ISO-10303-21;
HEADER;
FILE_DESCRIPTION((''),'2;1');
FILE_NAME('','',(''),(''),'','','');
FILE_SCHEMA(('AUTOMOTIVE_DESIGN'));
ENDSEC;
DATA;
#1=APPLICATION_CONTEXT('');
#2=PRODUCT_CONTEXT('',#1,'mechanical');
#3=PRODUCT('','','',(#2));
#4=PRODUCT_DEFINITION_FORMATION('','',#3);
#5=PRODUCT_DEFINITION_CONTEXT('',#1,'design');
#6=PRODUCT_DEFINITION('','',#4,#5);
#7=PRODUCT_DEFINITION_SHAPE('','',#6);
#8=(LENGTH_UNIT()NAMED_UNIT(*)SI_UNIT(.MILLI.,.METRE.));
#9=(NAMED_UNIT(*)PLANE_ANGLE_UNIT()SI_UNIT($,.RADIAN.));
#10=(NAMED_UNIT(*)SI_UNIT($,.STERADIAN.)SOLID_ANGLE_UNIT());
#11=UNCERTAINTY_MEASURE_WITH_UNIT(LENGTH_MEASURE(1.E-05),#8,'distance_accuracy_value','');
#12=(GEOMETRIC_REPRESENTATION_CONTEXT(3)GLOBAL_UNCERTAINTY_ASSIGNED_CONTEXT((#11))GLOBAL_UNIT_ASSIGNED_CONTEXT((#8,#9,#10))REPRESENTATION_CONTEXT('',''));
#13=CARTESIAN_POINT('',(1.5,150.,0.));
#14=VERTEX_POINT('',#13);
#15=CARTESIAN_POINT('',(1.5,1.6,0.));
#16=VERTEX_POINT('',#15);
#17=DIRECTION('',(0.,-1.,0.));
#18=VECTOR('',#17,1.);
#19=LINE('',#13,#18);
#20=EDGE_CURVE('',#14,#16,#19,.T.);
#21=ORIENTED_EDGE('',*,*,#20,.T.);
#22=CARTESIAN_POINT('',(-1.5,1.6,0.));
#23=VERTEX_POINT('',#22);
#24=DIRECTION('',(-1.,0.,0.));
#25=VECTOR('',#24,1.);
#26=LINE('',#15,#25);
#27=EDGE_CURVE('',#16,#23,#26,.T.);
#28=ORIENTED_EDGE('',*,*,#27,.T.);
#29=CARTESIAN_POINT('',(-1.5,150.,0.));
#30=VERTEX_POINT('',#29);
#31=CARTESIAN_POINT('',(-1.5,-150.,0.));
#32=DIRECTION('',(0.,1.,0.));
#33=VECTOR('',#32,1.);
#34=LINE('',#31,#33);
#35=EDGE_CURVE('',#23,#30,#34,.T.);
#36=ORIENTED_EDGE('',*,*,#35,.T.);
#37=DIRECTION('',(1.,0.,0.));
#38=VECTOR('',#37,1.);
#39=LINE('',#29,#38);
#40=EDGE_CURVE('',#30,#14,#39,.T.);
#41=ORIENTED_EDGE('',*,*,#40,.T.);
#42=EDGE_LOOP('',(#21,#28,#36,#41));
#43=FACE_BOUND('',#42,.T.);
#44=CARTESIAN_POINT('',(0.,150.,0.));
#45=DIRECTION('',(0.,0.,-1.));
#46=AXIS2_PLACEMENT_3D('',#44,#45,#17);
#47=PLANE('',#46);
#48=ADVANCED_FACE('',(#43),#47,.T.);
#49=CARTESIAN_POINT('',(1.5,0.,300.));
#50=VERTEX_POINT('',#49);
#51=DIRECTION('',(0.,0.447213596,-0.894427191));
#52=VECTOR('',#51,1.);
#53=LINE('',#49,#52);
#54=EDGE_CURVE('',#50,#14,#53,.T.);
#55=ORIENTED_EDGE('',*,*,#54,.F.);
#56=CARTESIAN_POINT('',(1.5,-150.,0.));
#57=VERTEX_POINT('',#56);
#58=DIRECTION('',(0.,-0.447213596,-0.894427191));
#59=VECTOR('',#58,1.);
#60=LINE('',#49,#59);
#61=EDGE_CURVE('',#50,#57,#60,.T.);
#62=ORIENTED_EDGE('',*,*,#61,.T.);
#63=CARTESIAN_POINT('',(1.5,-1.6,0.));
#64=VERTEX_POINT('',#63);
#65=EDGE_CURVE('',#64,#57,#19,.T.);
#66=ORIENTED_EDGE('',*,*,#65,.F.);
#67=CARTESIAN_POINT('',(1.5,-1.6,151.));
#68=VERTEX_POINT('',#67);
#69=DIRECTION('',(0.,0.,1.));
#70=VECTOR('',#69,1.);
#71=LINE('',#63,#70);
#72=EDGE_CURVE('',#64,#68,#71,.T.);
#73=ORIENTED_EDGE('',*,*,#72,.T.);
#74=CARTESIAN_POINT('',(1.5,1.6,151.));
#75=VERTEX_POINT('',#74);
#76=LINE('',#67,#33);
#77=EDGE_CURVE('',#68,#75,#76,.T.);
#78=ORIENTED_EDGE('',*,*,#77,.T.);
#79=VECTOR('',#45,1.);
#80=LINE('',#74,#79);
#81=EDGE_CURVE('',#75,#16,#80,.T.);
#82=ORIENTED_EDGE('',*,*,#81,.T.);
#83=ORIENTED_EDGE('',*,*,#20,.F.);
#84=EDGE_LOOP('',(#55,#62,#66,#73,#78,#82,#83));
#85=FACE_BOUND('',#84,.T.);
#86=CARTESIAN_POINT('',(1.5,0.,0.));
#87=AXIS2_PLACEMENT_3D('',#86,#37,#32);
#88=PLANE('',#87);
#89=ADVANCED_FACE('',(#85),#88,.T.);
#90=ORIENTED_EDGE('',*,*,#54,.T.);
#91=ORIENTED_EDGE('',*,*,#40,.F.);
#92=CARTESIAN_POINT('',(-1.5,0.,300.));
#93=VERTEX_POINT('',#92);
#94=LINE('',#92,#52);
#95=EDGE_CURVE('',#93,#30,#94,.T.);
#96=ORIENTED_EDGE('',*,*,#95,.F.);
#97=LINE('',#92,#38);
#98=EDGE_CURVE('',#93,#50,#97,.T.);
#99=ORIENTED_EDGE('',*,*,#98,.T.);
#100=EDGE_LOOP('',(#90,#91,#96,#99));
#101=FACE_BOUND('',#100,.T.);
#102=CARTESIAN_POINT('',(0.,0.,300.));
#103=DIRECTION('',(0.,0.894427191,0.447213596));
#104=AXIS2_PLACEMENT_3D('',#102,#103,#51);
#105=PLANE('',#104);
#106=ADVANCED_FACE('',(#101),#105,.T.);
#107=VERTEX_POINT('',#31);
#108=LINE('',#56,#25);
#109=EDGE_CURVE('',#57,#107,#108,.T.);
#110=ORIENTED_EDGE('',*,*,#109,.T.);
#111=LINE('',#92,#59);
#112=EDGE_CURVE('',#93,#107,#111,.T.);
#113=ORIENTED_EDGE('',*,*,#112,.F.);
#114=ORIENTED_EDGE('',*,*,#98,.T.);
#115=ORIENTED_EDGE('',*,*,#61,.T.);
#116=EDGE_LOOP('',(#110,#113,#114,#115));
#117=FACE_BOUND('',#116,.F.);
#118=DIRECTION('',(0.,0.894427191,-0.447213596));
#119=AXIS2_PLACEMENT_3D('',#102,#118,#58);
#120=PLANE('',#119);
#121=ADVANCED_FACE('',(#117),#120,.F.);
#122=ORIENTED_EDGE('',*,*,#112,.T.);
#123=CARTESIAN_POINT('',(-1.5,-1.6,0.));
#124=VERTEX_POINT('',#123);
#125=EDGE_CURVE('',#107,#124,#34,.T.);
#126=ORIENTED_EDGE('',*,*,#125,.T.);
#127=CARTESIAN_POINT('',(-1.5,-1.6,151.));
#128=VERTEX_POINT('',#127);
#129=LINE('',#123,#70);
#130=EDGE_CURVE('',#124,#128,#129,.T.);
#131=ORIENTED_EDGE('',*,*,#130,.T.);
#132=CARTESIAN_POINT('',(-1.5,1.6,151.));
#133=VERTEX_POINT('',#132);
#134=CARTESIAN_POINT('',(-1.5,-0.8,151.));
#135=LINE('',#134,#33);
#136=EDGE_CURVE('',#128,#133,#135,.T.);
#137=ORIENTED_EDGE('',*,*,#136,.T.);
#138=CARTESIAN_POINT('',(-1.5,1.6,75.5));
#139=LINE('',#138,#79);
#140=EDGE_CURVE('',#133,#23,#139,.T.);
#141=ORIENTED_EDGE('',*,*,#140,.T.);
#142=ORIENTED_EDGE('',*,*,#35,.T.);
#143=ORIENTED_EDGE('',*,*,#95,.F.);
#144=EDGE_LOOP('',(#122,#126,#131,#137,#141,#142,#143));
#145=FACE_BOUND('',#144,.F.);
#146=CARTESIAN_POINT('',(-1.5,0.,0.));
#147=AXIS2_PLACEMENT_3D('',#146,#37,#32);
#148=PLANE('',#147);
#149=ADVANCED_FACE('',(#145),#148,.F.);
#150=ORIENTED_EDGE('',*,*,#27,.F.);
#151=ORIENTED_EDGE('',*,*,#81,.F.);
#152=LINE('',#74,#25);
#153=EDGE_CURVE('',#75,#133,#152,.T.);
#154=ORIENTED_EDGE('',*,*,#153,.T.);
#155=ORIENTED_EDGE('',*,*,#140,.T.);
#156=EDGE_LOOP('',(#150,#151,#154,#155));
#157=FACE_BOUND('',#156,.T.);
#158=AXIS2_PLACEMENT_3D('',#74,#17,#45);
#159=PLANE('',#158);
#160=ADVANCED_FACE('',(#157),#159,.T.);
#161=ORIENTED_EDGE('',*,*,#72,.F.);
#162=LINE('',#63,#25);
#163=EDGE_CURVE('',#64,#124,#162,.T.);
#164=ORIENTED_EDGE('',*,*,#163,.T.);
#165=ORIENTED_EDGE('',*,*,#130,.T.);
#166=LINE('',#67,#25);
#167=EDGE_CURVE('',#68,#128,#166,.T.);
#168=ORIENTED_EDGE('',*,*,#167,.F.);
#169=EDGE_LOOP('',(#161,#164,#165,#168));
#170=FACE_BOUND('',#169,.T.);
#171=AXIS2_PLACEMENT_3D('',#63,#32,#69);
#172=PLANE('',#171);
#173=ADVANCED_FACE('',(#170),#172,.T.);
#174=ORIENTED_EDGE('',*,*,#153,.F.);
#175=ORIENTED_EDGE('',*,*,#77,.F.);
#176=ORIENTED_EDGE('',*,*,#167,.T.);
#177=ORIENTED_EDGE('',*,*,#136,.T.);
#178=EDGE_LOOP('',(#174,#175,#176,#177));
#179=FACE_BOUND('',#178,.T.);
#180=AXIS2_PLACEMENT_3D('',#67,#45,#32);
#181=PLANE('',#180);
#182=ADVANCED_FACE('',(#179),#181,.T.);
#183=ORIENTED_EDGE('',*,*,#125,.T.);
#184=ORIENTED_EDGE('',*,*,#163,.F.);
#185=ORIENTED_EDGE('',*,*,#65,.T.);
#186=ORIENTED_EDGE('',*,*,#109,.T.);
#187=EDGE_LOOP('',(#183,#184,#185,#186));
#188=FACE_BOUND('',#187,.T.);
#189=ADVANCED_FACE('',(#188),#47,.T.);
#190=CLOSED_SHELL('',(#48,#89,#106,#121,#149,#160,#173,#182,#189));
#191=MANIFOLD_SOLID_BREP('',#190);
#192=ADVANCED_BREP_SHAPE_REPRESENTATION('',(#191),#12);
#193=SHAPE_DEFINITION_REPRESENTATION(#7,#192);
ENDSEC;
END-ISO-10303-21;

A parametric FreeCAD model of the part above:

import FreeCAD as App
import Part
import Sketcher


def add_polygon(sketch, points):
    """Adds a closed chain of lines whose ends are joined by coincident constraints."""
    first, n = sketch.GeometryCount, len(points)
    for a, b in zip(points, points[1:] + points[:1]):
        sketch.addGeometry(Part.LineSegment(App.Vector(*a, 0), App.Vector(*b, 0)), False)
    for i in range(n):
        sketch.addConstraint(Sketcher.Constraint("Coincident", first + i, 2, first + (i + 1) % n, 1))

doc = App.newDocument("Part")
body = doc.addObject("PartDesign::Body", "Body")

sketch1 = body.newObject("Sketcher::SketchObject", "Sketch")
sketch1.AttachmentSupport = (doc.getObject("YZ_Plane"), [""])
sketch1.MapMode = "FlatFace"
add_polygon(sketch1, [(150, 0), (0, 300), (-150, 0)])
sketch1.addConstraint(Sketcher.Constraint("Horizontal", 2))
sketch1.addConstraint(Sketcher.Constraint("Symmetric", 1, 2, 2, 2, -1, 1))
sketch1.addConstraint(Sketcher.Constraint("PointOnObject", 0, 2, -2))
sketch1.addConstraint(Sketcher.Constraint("DistanceX", 2, 1, 2, 2, 300.0))
sketch1.addConstraint(Sketcher.Constraint("DistanceY", -1, 1, 0, 2, 300.0))
pad1 = body.newObject("PartDesign::Pad", "Pad")
pad1.Profile = sketch1
pad1.Length = 3
pad1.Midplane = True

sketch2 = body.newObject("Sketcher::SketchObject", "Sketch001")
sketch2.AttachmentSupport = (doc.getObject("YZ_Plane"), [""])
sketch2.MapMode = "FlatFace"
sketch2.AttachmentOffset = App.Placement(App.Vector(0, 0, 1.5), App.Rotation())
add_polygon(sketch2, [(-1.6, 151), (-1.6, 0), (1.6, 0), (1.6, 151)])
sketch2.addConstraint(Sketcher.Constraint("Vertical", 0))
sketch2.addConstraint(Sketcher.Constraint("Horizontal", 1))
sketch2.addConstraint(Sketcher.Constraint("Vertical", 2))
sketch2.addConstraint(Sketcher.Constraint("Horizontal", 3))
sketch2.addConstraint(Sketcher.Constraint("Symmetric", 0, 2, 1, 2, -1, 1))
sketch2.addConstraint(Sketcher.Constraint("DistanceY", 0, 2, 0, 1, 151.0))
sketch2.addConstraint(Sketcher.Constraint("DistanceX", 1, 1, 1, 2, 3.2))
pocket1 = body.newObject("PartDesign::Pocket", "Pocket")
pocket1.Profile = sketch2
pocket1.Type = "ThroughAll"

doc.recompute()
